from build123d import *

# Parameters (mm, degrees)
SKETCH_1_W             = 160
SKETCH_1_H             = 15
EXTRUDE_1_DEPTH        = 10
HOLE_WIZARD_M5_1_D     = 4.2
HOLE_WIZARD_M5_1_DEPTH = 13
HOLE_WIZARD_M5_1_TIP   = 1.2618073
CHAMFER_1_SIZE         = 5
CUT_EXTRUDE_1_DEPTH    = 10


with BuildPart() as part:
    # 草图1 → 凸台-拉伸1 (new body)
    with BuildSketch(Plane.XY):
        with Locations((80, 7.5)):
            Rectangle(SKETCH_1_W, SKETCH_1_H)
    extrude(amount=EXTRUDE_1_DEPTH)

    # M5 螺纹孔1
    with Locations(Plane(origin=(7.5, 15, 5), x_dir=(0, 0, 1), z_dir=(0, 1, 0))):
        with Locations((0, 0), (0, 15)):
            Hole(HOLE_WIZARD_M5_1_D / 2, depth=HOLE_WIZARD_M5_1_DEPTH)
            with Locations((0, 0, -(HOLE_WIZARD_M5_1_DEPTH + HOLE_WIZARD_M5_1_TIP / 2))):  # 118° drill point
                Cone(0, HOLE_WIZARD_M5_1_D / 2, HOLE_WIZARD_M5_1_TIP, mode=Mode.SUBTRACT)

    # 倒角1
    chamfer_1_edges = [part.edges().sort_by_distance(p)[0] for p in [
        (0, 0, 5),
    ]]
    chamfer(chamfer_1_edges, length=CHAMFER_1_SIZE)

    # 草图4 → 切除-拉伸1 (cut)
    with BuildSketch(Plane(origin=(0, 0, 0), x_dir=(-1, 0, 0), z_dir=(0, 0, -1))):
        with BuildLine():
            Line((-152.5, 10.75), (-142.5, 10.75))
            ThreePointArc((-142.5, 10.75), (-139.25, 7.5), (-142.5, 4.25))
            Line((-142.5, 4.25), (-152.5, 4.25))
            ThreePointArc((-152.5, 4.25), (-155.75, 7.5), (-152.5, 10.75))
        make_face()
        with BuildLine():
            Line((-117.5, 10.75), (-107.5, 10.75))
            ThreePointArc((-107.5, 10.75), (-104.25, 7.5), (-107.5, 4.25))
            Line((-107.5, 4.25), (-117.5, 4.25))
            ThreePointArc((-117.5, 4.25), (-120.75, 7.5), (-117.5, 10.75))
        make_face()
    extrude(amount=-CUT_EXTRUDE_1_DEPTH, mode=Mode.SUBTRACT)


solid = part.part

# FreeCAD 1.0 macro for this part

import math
import FreeCAD as App
import Part
import Sketcher

V = App.Vector
Q = App.Units.Quantity


def edges_at(feature, points):
    """Names of the edges that pass closest to the given points."""
    edges = feature.Shape.Edges
    near = lambda p: min(range(len(edges)), key=lambda i: edges[i].distToShape(Part.Vertex(*p))[0])
    return sorted({f"Edge{near(p) + 1}" for p in points})


def add_polygon(sketch, points):
    """Adds a closed chain of lines whose ends are joined by coincident constraints."""
    first, n = sketch.GeometryCount, len(points)
    for a, b in zip(points, points[1:] + points[:1]):
        sketch.addGeometry(Part.LineSegment(App.Vector(*a, 0), App.Vector(*b, 0)), False)
    for i in range(n):
        sketch.addConstraint(Sketcher.Constraint("Coincident", first + i, 2, first + (i + 1) % n, 1))

doc = App.newDocument("Part")
body = doc.addObject("PartDesign::Body", "Body")

sketch1 = body.newObject("Sketcher::SketchObject", "Sketch")
sketch1.AttachmentSupport = (doc.getObject("XY_Plane"), [""])
sketch1.MapMode = "FlatFace"
add_polygon(sketch1, [(0, 15), (0, 0), (160, 0), (160, 15)])
sketch1.addConstraint([
    Sketcher.Constraint("Vertical", 0),
    Sketcher.Constraint("Horizontal", 1),
    Sketcher.Constraint("Vertical", 2),
    Sketcher.Constraint("Horizontal", 3),
    Sketcher.Constraint("Coincident", 0, 2, -1, 1),
    Sketcher.Constraint("DistanceX", 1, 1, 1, 2, Q("160 mm")),
    Sketcher.Constraint("DistanceY", 0, 2, 0, 1, Q("15 mm")),
])
pad1 = body.newObject("PartDesign::Pad", "Pad")
pad1.Profile = sketch1
pad1.Length = 10

sketch2 = body.newObject("Sketcher::SketchObject", "Sketch001")
sketch2.AttachmentSupport = (doc.getObject("XZ_Plane"), [""])
sketch2.MapMode = "FlatFace"
sketch2.AttachmentOffset = App.Placement(V(0, 0, -15), App.Rotation())
sketch2.addGeometry([
    Part.Circle(V(7.5, 5, 0), V(0, 0, 1), 2.1),
    Part.Circle(V(22.5, 5, 0), V(0, 0, 1), 2.1),
], False)
sketch2.addConstraint([
    Sketcher.Constraint("Equal", 0, 1),
    Sketcher.Constraint("Horizontal", 0, 3, 1, 3),
    Sketcher.Constraint("Diameter", 0, Q("4.2 mm")),
    Sketcher.Constraint("DistanceY", -1, 1, 0, 3, Q("5 mm")),
    Sketcher.Constraint("DistanceX", 0, 3, 1, 3, Q("15 mm")),
    Sketcher.Constraint("DistanceX", -1, 1, 0, 3, Q("7.5 mm")),
])
doc.recompute()
hole = body.newObject("PartDesign::Hole", "Hole")
hole.Profile = sketch2
hole.ThreadType = "None"
hole.Diameter = 4.2
hole.DepthType = "Dimension"
hole.Depth = 13
hole.DrillPoint = "Angled"
hole.DrillPointAngle = 118
hole.Reversed = True
doc.recompute()

chamfer = body.newObject("PartDesign::Chamfer", "Chamfer")
chamfer.Base = (hole, edges_at(hole, [(0, 0, 5)]))
chamfer.Size = 5

sketch3 = body.newObject("Sketcher::SketchObject", "Sketch002")
sketch3.AttachmentSupport = (doc.getObject("XY_Plane"), [""])
sketch3.MapMode = "FlatFace"
sketch3.addGeometry([
    Part.LineSegment(V(142.5, 10.8, 0), V(152.5, 10.8, 0)),
    Part.ArcOfCircle(Part.Circle(V(152.5, 7.5, 0), V(0, 0, 1), 3.2), math.radians(-90), math.radians(90)),
    Part.LineSegment(V(152.5, 4.2, 0), V(142.5, 4.2, 0)),
    Part.ArcOfCircle(Part.Circle(V(142.5, 7.5, 0), V(0, 0, 1), 3.2), math.radians(90), math.radians(270)),
    Part.LineSegment(V(107.5, 10.8, 0), V(117.5, 10.8, 0)),
    Part.ArcOfCircle(Part.Circle(V(117.5, 7.5, 0), V(0, 0, 1), 3.2), math.radians(-90), math.radians(90)),
    Part.LineSegment(V(117.5, 4.2, 0), V(107.5, 4.2, 0)),
    Part.ArcOfCircle(Part.Circle(V(107.5, 7.5, 0), V(0, 0, 1), 3.2), math.radians(90), math.radians(270)),
], False)
sketch3.addConstraint([
    Sketcher.Constraint("Tangent", 0, 2, 1, 2),
    Sketcher.Constraint("Tangent", 1, 1, 2, 1),
    Sketcher.Constraint("Tangent", 2, 2, 3, 2),
    Sketcher.Constraint("Tangent", 3, 1, 0, 1),
    Sketcher.Constraint("Tangent", 4, 2, 5, 2),
    Sketcher.Constraint("Tangent", 5, 1, 6, 1),
    Sketcher.Constraint("Tangent", 6, 2, 7, 2),
    Sketcher.Constraint("Tangent", 7, 1, 4, 1),
    Sketcher.Constraint("Horizontal", 0),
    Sketcher.Constraint("Horizontal", 2),
    Sketcher.Constraint("Horizontal", 4),
    Sketcher.Constraint("Horizontal", 6),
    Sketcher.Constraint("Equal", 3, 5),
    Sketcher.Constraint("Horizontal", 3, 3, 5, 3),
    Sketcher.Constraint("Equal", 2, 4),
    Sketcher.Constraint("DistanceX", 0, 1, 0, 2, Q("10 mm")),
    Sketcher.Constraint("Radius", 1, Q("3.25 mm")),
    Sketcher.Constraint("DistanceX", 5, 3, 3, 3, Q("25 mm")),
    Sketcher.Constraint("DistanceX", -1, 1, 1, 3, Q("152.5 mm")),
    Sketcher.Constraint("DistanceY", -1, 1, 1, 3, Q("7.5 mm")),
])
pocket1 = body.newObject("PartDesign::Pocket", "Pocket")
pocket1.Profile = sketch3
pocket1.Length = 10
pocket1.Reversed = True

doc.recompute()
